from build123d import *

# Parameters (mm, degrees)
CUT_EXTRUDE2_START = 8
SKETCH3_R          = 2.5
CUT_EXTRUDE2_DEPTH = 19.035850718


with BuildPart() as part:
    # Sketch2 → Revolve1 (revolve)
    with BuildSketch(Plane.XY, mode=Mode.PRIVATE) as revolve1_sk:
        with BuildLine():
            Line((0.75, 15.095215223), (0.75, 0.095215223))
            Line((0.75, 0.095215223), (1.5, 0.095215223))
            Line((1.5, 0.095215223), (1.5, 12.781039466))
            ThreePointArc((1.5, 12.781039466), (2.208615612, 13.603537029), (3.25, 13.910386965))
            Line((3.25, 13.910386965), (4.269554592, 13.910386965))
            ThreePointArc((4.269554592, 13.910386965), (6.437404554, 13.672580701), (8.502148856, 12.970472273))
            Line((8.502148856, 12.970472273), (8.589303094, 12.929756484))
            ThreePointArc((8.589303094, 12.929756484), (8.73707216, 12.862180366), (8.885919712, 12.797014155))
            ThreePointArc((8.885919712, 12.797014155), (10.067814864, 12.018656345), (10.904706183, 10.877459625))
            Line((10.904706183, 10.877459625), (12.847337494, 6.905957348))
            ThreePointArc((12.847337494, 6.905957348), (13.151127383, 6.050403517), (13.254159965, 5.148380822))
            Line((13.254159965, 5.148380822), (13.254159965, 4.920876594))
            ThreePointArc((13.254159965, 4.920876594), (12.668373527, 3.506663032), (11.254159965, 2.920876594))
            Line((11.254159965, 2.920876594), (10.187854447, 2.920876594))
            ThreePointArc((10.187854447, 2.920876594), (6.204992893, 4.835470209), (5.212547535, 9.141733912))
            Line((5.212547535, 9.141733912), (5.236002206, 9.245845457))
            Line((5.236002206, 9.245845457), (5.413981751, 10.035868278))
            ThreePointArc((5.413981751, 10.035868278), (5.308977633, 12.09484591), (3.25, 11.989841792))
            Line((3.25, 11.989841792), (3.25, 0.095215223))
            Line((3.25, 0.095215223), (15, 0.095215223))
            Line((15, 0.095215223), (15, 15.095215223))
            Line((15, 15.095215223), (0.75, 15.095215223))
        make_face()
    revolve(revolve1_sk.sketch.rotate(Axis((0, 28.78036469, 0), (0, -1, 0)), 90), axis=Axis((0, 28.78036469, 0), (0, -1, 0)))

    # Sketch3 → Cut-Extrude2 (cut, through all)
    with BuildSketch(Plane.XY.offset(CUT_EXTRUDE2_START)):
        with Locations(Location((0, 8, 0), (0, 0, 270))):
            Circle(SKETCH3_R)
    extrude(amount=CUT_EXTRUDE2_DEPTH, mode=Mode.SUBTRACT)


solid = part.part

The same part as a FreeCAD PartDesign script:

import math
import FreeCAD as App
import Part
import Sketcher

V = App.Vector
Q = App.Units.Quantity

doc = App.newDocument("Part")
body = doc.addObject("PartDesign::Body", "Body")

# Sketch on XY plane
sketch1 = doc.addObject("Sketcher::SketchObject", "Sketch")
body.addObject(sketch1)
sketch1.AttachmentSupport = (doc.XY_Plane, [""])
sketch1.MapMode = "FlatFace"
sketch1.addGeometry([
    Part.LineSegment(V(0.75, 15.1, 0), V(0.75, 0.1, 0)),  # 0
    Part.LineSegment(V(0.75, 0.1, 0), V(1.5, 0.1, 0)),  # 1
    Part.LineSegment(V(1.5, 0.1, 0), V(1.5, 12.78, 0)),  # 2
    Part.ArcOfCircle(Part.Circle(V(3.25, 11.99, 0), V(0, 0, 1), 1.92), math.radians(90), math.radians(156)),  # 3
    Part.LineSegment(V(3.25, 13.91, 0), V(4.27, 13.91, 0)),  # 4
    Part.ArcOfCircle(Part.Circle(V(4.27, 3.91, 0), V(0, 0, 1), 10), math.radians(65), math.radians(90)),  # 5
    Part.LineSegment(V(8.5, 12.97, 0), V(8.59, 12.93, 0)),  # 6
    Part.ArcOfCircle(Part.Circle(V(12.82, 21.99, 0), V(0, 0, 1), 10), math.radians(-115.04), math.radians(-113.18)),  # 7
    Part.ArcOfCircle(Part.Circle(V(7.31, 9.12, 0), V(0, 0, 1), 4), math.radians(26), math.radians(67)),  # 8
    Part.LineSegment(V(10.9, 10.88, 0), V(12.85, 6.91, 0)),  # 9
    Part.ArcOfCircle(Part.Circle(V(9.25, 5.15, 0), V(0, 0, 1), 4), math.radians(0), math.radians(26)),  # 10
    Part.LineSegment(V(13.25, 5.15, 0), V(13.25, 4.92, 0)),  # 11
    Part.ArcOfCircle(Part.Circle(V(11.25, 4.92, 0), V(0, 0, 1), 2), math.radians(-90), math.radians(0)),  # 12
    Part.LineSegment(V(11.25, 2.92, 0), V(10.19, 2.92, 0)),  # 13
    Part.ArcOfCircle(Part.Circle(V(10.19, 8.02, 0), V(0, 0, 1), 5.1), math.radians(167), math.radians(270)),  # 14
    Part.LineSegment(V(5.21, 9.14, 0), V(5.24, 9.25, 0)),  # 15
    Part.LineSegment(V(5.24, 9.25, 0), V(5.41, 10.04, 0)),  # 16
    Part.ArcOfCircle(Part.Circle(V(4.33, 11.01, 0), V(0, 0, 1), 1.46), math.radians(-42), math.radians(138)),  # 17
    Part.LineSegment(V(3.25, 11.99, 0), V(3.25, 0.1, 0)),  # 18
    Part.LineSegment(V(3.25, 0.1, 0), V(15, 0.1, 0)),  # 19
    Part.LineSegment(V(15, 0.1, 0), V(15, 15.1, 0)),  # 20
    Part.LineSegment(V(15, 15.1, 0), V(0.75, 15.1, 0)),  # 21
], False)
sketch1.addConstraint([
    Sketcher.Constraint("Coincident", 0, 2, 1, 1),
    Sketcher.Constraint("Coincident", 1, 2, 2, 1),
    Sketcher.Constraint("Coincident", 2, 2, 3, 2),
    Sketcher.Constraint("Tangent", 3, 1, 4, 1),
    Sketcher.Constraint("Tangent", 4, 2, 5, 2),
    Sketcher.Constraint("Tangent", 5, 1, 6, 1),
    Sketcher.Constraint("Tangent", 6, 2, 7, 1),
    Sketcher.Constraint("Tangent", 7, 2, 8, 2),
    Sketcher.Constraint("Tangent", 8, 1, 9, 1),
    Sketcher.Constraint("Tangent", 9, 2, 10, 2),
    Sketcher.Constraint("Tangent", 10, 1, 11, 1),
    Sketcher.Constraint("Tangent", 11, 2, 12, 2),
    Sketcher.Constraint("Tangent", 12, 1, 13, 1),
    Sketcher.Constraint("Tangent", 13, 2, 14, 2),
    Sketcher.Constraint("Tangent", 14, 1, 15, 1),
    Sketcher.Constraint("Coincident", 15, 2, 16, 1),
    Sketcher.Constraint("Coincident", 16, 2, 17, 1),
    Sketcher.Constraint("Coincident", 17, 2, 18, 1),
    Sketcher.Constraint("Coincident", 18, 2, 19, 1),
    Sketcher.Constraint("Coincident", 19, 2, 20, 1),
    Sketcher.Constraint("Coincident", 20, 2, 21, 1),
    Sketcher.Constraint("Coincident", 21, 2, 0, 1),
    Sketcher.Constraint("Vertical", 0),
    Sketcher.Constraint("Horizontal", 1),
    Sketcher.Constraint("Vertical", 2),
    Sketcher.Constraint("Horizontal", 4),
    Sketcher.Constraint("Vertical", 11),
    Sketcher.Constraint("Horizontal", 13),
    Sketcher.Constraint("Vertical", 18),
    Sketcher.Constraint("Horizontal", 19),
    Sketcher.Constraint("Vertical", 20),
    Sketcher.Constraint("Horizontal", 21),
    Sketcher.Constraint("Coincident", 17, 2, 3, 3),
    Sketcher.Constraint("Equal", 8, 10),
    Sketcher.Constraint("Parallel", 15, 16),
    Sketcher.Constraint("Horizontal", 1, 2, 18, 2),
    Sketcher.Constraint("Radius", 5, Q("10 mm")),
    Sketcher.Constraint("Radius", 8, Q("4 mm")),
    Sketcher.Constraint("Radius", 12, Q("2 mm")),
    Sketcher.Constraint("Radius", 14, Q("5.1 mm")),
    Sketcher.Constraint("DistanceY", 0, 2, 0, 1, Q("15 mm")),
    Sketcher.Constraint("DistanceX", -1, 1, 19, 2, Q("15 mm")),
    Sketcher.Constraint("DistanceX", 1, 1, 1, 2, Q("0.75 mm")),
    Sketcher.Constraint("DistanceX", 19, 1, 19, 2, Q("11.75 mm")),
    Sketcher.Constraint("DistanceX", 21, 2, 21, 1, Q("14.25 mm")),
    Sketcher.Constraint("Radius", 17, Q("1.457809 mm")),
    Sketcher.Constraint("Radius", 3, Q("1.920545 mm")),
    Sketcher.Constraint("Radius", 7, Q("9.999995 mm")),
    Sketcher.Constraint("DistanceX", 5, 3, 14, 3, Q("5.9183 mm")),
    Sketcher.Constraint("DistanceY", 17, 3, 6, 2, Q("1.916901 mm")),
    Sketcher.Constraint("DistanceX", 14, 1, 5, 1, Q("3.289601 mm")),
    Sketcher.Constraint("DistanceY", 7, 2, 20, 2, Q("2.298201 mm")),
    Sketcher.Constraint("Distance", 9, Q("4.421159 mm")),
    Sketcher.Constraint("Distance", 15, Q("0.106721 mm")),
    Sketcher.Constraint("DistanceX", 4, 1, 4, 2, Q("1.019555 mm")),
    Sketcher.Constraint("DistanceX", 13, 2, 13, 1, Q("1.066306 mm")),
    Sketcher.Constraint("DistanceY", 2, 1, 2, 2, Q("12.685824 mm")),
    Sketcher.Constraint("DistanceY", 11, 2, 11, 1, Q("0.227504 mm")),
    Sketcher.Constraint("DistanceY", -1, 1, 3, 3, Q("11.989842 mm")),
    Sketcher.Constraint("DistanceX", -1, 1, 8, 3, Q("7.311529 mm")),
    Sketcher.Constraint("DistanceX", -1, 1, 17, 3, Q("4.331991 mm")),
])
revolution = doc.addObject("PartDesign::Revolution", "Revolution")
body.addObject(revolution)
revolution.Profile = sketch1
revolution.ReferenceAxis = (sketch1, ["V_Axis"])
revolution.Angle = 360

# Sketch on XY plane
sketch2 = doc.addObject("Sketcher::SketchObject", "Sketch001")
body.addObject(sketch2)
sketch2.AttachmentSupport = (doc.XY_Plane, [""])
sketch2.MapMode = "FlatFace"
sketch2.AttachmentOffset = App.Placement(V(0, 0, 8), App.Rotation())
sketch2.addGeometry(Part.Circle(V(0, 8, 0), V(0, 0, 1), 2.5), False)
sketch2.addConstraint([
    Sketcher.Constraint("PointOnObject", 0, 3, -2),
    Sketcher.Constraint("Diameter", 0, Q("5 mm")),
    Sketcher.Constraint("DistanceY", -1, 1, 0, 3, Q("8 mm")),
])
pocket1 = doc.addObject("PartDesign::Pocket", "Pocket")
body.addObject(pocket1)
pocket1.Profile = sketch2
pocket1.Type = "ThroughAll"
pocket1.Reversed = True

doc.recompute()
